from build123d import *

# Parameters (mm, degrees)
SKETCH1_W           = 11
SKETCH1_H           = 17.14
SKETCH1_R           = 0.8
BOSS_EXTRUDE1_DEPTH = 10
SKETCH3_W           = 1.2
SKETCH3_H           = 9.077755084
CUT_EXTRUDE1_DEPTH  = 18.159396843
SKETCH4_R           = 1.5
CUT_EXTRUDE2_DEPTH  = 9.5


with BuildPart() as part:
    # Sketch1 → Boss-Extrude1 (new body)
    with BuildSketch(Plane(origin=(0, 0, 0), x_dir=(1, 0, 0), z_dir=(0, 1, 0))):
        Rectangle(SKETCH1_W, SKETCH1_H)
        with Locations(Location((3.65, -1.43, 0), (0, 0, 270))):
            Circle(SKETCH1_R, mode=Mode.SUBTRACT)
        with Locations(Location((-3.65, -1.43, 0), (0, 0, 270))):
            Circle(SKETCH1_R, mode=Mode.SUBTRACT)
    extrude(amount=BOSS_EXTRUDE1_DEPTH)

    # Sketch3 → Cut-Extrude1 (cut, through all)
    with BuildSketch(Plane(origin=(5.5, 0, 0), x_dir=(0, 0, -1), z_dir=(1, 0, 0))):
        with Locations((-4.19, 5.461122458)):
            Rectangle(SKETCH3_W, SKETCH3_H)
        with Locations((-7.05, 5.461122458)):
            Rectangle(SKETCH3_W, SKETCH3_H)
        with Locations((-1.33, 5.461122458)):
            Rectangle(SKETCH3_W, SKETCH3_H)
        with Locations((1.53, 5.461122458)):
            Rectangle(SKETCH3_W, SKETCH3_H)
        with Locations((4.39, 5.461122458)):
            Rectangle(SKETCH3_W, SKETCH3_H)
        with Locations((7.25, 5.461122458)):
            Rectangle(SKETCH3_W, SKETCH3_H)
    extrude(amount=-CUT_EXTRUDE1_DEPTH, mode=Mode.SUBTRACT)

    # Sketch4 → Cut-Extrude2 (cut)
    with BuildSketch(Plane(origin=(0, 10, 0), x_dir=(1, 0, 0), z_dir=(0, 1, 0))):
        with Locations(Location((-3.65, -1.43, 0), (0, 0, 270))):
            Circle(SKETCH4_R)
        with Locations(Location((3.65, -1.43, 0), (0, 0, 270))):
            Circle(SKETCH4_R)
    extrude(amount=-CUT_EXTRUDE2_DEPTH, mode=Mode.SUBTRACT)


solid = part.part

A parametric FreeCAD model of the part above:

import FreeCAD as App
import Part
import Sketcher

doc = App.newDocument("Part")
params = doc.addObject("Spreadsheet::Sheet", "Params")
for row, (alias, value) in enumerate([
    ("sketch1_diameter", "1.6 mm"),
    ("sketch1_width", "11 mm"),
    ("sketch1_height", "17.14 mm"),
    ("pad1_length", "10 mm"),
    ("sketch2_height", "1.2 mm"),
    ("sketch3_diameter", "3 mm"),
    ("pocket2_length", "9.5 mm"),
], start=1):
    params.set(f"A{row}", alias)
    params.set(f"B{row}", "=" + value)
    params.setAlias(f"B{row}", alias)

body = doc.addObject("PartDesign::Body", "Body")

sketch1 = body.newObject("Sketcher::SketchObject", "Sketch")
sketch1.AttachmentSupport = (doc.getObject("XZ_Plane"), [""])
sketch1.MapMode = "FlatFace"
sketch1.addGeometry([
    Part.LineSegment(App.Vector(-5.5, -8.57, 0), App.Vector(-5.5, 8.57, 0)),
    Part.LineSegment(App.Vector(-5.5, 8.57, 0), App.Vector(5.5, 8.57, 0)),
    Part.LineSegment(App.Vector(5.5, 8.57, 0), App.Vector(5.5, -8.57, 0)),
    Part.LineSegment(App.Vector(5.5, -8.57, 0), App.Vector(-5.5, -8.57, 0)),
    Part.Circle(App.Vector(-3.65, 1.43, 0), App.Vector(0, 0, 1), 0.8),
    Part.Circle(App.Vector(3.65, 1.43, 0), App.Vector(0, 0, 1), 0.8),
], False)
sketch1.addConstraint([
    Sketcher.Constraint("Coincident", 0, 2, 1, 1),
    Sketcher.Constraint("Coincident", 1, 2, 2, 1),
    Sketcher.Constraint("Coincident", 2, 2, 3, 1),
    Sketcher.Constraint("Coincident", 3, 2, 0, 1),
    Sketcher.Constraint("Vertical", 0),
    Sketcher.Constraint("Horizontal", 1),
    Sketcher.Constraint("Vertical", 2),
    Sketcher.Constraint("Horizontal", 3),
    Sketcher.Constraint("Equal", 4, 5),
    Sketcher.Constraint("Symmetric", 0, 2, 2, 2, -1, 1),
    Sketcher.Constraint("Symmetric", 4, 3, 5, 3, -2),
    Sketcher.Constraint("Diameter", 4, 1.6),
    Sketcher.Constraint("DistanceX", 1, 1, 1, 2, 11.0),
    Sketcher.Constraint("DistanceY", 2, 2, 5, 3, 10.0),
    Sketcher.Constraint("DistanceY", 0, 1, 0, 2, 17.14),
    Sketcher.Constraint("DistanceX", 4, 3, 5, 3, 7.3),
])
sketch1.setExpression("Constraints[11]", "Params.sketch1_diameter")
sketch1.setExpression("Constraints[12]", "Params.sketch1_width")
sketch1.setExpression("Constraints[14]", "Params.sketch1_height")
pad1 = body.newObject("PartDesign::Pad", "Pad")
pad1.Profile = sketch1
pad1.setExpression("Length", "Params.pad1_length")
pad1.Reversed = True

sketch2 = body.newObject("Sketcher::SketchObject", "Sketch001")
sketch2.AttachmentSupport = (doc.getObject("YZ_Plane"), [""])
sketch2.MapMode = "FlatFace"
sketch2.AttachmentOffset = App.Placement(App.Vector(0, 0, 5.5), App.Rotation())
sketch2.addGeometry([
    Part.LineSegment(App.Vector(10, 4.79, 0), App.Vector(0.922245, 4.79, 0)),
    Part.LineSegment(App.Vector(0.922245, 4.79, 0), App.Vector(0.922245, 3.59, 0)),
    Part.LineSegment(App.Vector(0.922245, 3.59, 0), App.Vector(10, 3.59, 0)),
    Part.LineSegment(App.Vector(10, 3.59, 0), App.Vector(10, 4.79, 0)),
    Part.LineSegment(App.Vector(10, 7.65, 0), App.Vector(0.922245, 7.65, 0)),
    Part.LineSegment(App.Vector(0.922245, 7.65, 0), App.Vector(0.922245, 6.45, 0)),
    Part.LineSegment(App.Vector(0.922245, 6.45, 0), App.Vector(10, 6.45, 0)),
    Part.LineSegment(App.Vector(10, 6.45, 0), App.Vector(10, 7.65, 0)),
    Part.LineSegment(App.Vector(10, 1.93, 0), App.Vector(0.922245, 1.93, 0)),
    Part.LineSegment(App.Vector(0.922245, 1.93, 0), App.Vector(0.922245, 0.73, 0)),
    Part.LineSegment(App.Vector(0.922245, 0.73, 0), App.Vector(10, 0.73, 0)),
    Part.LineSegment(App.Vector(10, 0.73, 0), App.Vector(10, 1.93, 0)),
    Part.LineSegment(App.Vector(10, -0.93, 0), App.Vector(0.922245, -0.93, 0)),
    Part.LineSegment(App.Vector(0.922245, -0.93, 0), App.Vector(0.922245, -2.13, 0)),
    Part.LineSegment(App.Vector(0.922245, -2.13, 0), App.Vector(10, -2.13, 0)),
    Part.LineSegment(App.Vector(10, -2.13, 0), App.Vector(10, -0.93, 0)),
    Part.LineSegment(App.Vector(10, -3.79, 0), App.Vector(0.922245, -3.79, 0)),
    Part.LineSegment(App.Vector(0.922245, -3.79, 0), App.Vector(0.922245, -4.99, 0)),
    Part.LineSegment(App.Vector(0.922245, -4.99, 0), App.Vector(10, -4.99, 0)),
    Part.LineSegment(App.Vector(10, -4.99, 0), App.Vector(10, -3.79, 0)),
    Part.LineSegment(App.Vector(10, -6.65, 0), App.Vector(0.922245, -6.65, 0)),
    Part.LineSegment(App.Vector(0.922245, -6.65, 0), App.Vector(0.922245, -7.85, 0)),
    Part.LineSegment(App.Vector(0.922245, -7.85, 0), App.Vector(10, -7.85, 0)),
    Part.LineSegment(App.Vector(10, -7.85, 0), App.Vector(10, -6.65, 0)),
], False)
sketch2.addConstraint([
    Sketcher.Constraint("Coincident", 0, 2, 1, 1),
    Sketcher.Constraint("Coincident", 1, 2, 2, 1),
    Sketcher.Constraint("Coincident", 2, 2, 3, 1),
    Sketcher.Constraint("Coincident", 3, 2, 0, 1),
    Sketcher.Constraint("Coincident", 4, 2, 5, 1),
    Sketcher.Constraint("Coincident", 5, 2, 6, 1),
    Sketcher.Constraint("Coincident", 6, 2, 7, 1),
    Sketcher.Constraint("Coincident", 7, 2, 4, 1),
    Sketcher.Constraint("Coincident", 8, 2, 9, 1),
    Sketcher.Constraint("Coincident", 9, 2, 10, 1),
    Sketcher.Constraint("Coincident", 10, 2, 11, 1),
    Sketcher.Constraint("Coincident", 11, 2, 8, 1),
    Sketcher.Constraint("Coincident", 12, 2, 13, 1),
    Sketcher.Constraint("Coincident", 13, 2, 14, 1),
    Sketcher.Constraint("Coincident", 14, 2, 15, 1),
    Sketcher.Constraint("Coincident", 15, 2, 12, 1),
    Sketcher.Constraint("Coincident", 16, 2, 17, 1),
    Sketcher.Constraint("Coincident", 17, 2, 18, 1),
    Sketcher.Constraint("Coincident", 18, 2, 19, 1),
    Sketcher.Constraint("Coincident", 19, 2, 16, 1),
    Sketcher.Constraint("Coincident", 20, 2, 21, 1),
    Sketcher.Constraint("Coincident", 21, 2, 22, 1),
    Sketcher.Constraint("Coincident", 22, 2, 23, 1),
    Sketcher.Constraint("Coincident", 23, 2, 20, 1),
    Sketcher.Constraint("Horizontal", 0),
    Sketcher.Constraint("Vertical", 1),
    Sketcher.Constraint("Horizontal", 2),
    Sketcher.Constraint("Vertical", 3),
    Sketcher.Constraint("Horizontal", 4),
    Sketcher.Constraint("Vertical", 5),
    Sketcher.Constraint("Horizontal", 6),
    Sketcher.Constraint("Vertical", 7),
    Sketcher.Constraint("Horizontal", 8),
    Sketcher.Constraint("Vertical", 9),
    Sketcher.Constraint("Horizontal", 10),
    Sketcher.Constraint("Vertical", 11),
    Sketcher.Constraint("Horizontal", 12),
    Sketcher.Constraint("Vertical", 13),
    Sketcher.Constraint("Horizontal", 14),
    Sketcher.Constraint("Vertical", 15),
    Sketcher.Constraint("Horizontal", 16),
    Sketcher.Constraint("Vertical", 17),
    Sketcher.Constraint("Horizontal", 18),
    Sketcher.Constraint("Vertical", 19),
    Sketcher.Constraint("Horizontal", 20),
    Sketcher.Constraint("Vertical", 21),
    Sketcher.Constraint("Horizontal", 22),
    Sketcher.Constraint("Vertical", 23),
    Sketcher.Constraint("Vertical", 1, 2, 4, 2),
    Sketcher.Constraint("Vertical", 3, 2, 6, 2),
    Sketcher.Constraint("Vertical", 5, 2, 8, 2),
    Sketcher.Constraint("Vertical", 7, 2, 10, 2),
    Sketcher.Constraint("Vertical", 9, 2, 12, 2),
    Sketcher.Constraint("Vertical", 11, 2, 14, 2),
    Sketcher.Constraint("Vertical", 13, 2, 16, 2),
    Sketcher.Constraint("Vertical", 15, 2, 18, 2),
    Sketcher.Constraint("Vertical", 17, 2, 20, 2),
    Sketcher.Constraint("Vertical", 19, 2, 22, 2),
    Sketcher.Constraint("Equal", 3, 5),
    Sketcher.Constraint("Equal", 7, 9),
    Sketcher.Constraint("Equal", 11, 13),
    Sketcher.Constraint("Equal", 15, 17),
    Sketcher.Constraint("Equal", 19, 21),
    Sketcher.Constraint("DistanceY", 1, 2, 1, 1, 1.2),
    Sketcher.Constraint("DistanceX", -1, 1, 2, 2, 10.0),
    Sketcher.Constraint("DistanceY", -1, 1, 0, 2, 4.79),
    Sketcher.Constraint("DistanceY", -1, 1, 4, 2, 7.65),
    Sketcher.Constraint("DistanceY", -1, 1, 8, 2, 1.93),
    Sketcher.Constraint("DistanceY", 12, 2, -1, 1, 0.93),
    Sketcher.Constraint("DistanceY", 16, 2, -1, 1, 3.79),
    Sketcher.Constraint("DistanceY", 20, 2, -1, 1, 6.65),
    Sketcher.Constraint("DistanceX", 0, 2, 0, 1, 9.077755),
])
sketch2.setExpression("Constraints[63]", "Params.sketch2_height")
pocket1 = body.newObject("PartDesign::Pocket", "Pocket")
pocket1.Profile = sketch2
pocket1.Type = "ThroughAll"

sketch3 = body.newObject("Sketcher::SketchObject", "Sketch002")
sketch3.AttachmentSupport = (doc.getObject("XZ_Plane"), [""])
sketch3.MapMode = "FlatFace"
sketch3.AttachmentOffset = App.Placement(App.Vector(0, 0, -10), App.Rotation())
sketch3.addGeometry([
    Part.Circle(App.Vector(-3.65, 1.43, 0), App.Vector(0, 0, 1), 1.5),
    Part.Circle(App.Vector(3.65, 1.43, 0), App.Vector(0, 0, 1), 1.5),
], False)
sketch3.addConstraint([
    Sketcher.Constraint("Equal", 0, 1),
    Sketcher.Constraint("Symmetric", 0, 3, 1, 3, -2),
    Sketcher.Constraint("Diameter", 0, 3.0),
    Sketcher.Constraint("DistanceX", 0, 3, 1, 3, 7.3),
    Sketcher.Constraint("DistanceY", -1, 1, 0, 3, 1.43),
])
sketch3.setExpression("Constraints[2]", "Params.sketch3_diameter")
pocket2 = body.newObject("PartDesign::Pocket", "Pocket001")
pocket2.Profile = sketch3
pocket2.setExpression("Length", "Params.pocket2_length")
pocket2.Reversed = True

doc.recompute()
